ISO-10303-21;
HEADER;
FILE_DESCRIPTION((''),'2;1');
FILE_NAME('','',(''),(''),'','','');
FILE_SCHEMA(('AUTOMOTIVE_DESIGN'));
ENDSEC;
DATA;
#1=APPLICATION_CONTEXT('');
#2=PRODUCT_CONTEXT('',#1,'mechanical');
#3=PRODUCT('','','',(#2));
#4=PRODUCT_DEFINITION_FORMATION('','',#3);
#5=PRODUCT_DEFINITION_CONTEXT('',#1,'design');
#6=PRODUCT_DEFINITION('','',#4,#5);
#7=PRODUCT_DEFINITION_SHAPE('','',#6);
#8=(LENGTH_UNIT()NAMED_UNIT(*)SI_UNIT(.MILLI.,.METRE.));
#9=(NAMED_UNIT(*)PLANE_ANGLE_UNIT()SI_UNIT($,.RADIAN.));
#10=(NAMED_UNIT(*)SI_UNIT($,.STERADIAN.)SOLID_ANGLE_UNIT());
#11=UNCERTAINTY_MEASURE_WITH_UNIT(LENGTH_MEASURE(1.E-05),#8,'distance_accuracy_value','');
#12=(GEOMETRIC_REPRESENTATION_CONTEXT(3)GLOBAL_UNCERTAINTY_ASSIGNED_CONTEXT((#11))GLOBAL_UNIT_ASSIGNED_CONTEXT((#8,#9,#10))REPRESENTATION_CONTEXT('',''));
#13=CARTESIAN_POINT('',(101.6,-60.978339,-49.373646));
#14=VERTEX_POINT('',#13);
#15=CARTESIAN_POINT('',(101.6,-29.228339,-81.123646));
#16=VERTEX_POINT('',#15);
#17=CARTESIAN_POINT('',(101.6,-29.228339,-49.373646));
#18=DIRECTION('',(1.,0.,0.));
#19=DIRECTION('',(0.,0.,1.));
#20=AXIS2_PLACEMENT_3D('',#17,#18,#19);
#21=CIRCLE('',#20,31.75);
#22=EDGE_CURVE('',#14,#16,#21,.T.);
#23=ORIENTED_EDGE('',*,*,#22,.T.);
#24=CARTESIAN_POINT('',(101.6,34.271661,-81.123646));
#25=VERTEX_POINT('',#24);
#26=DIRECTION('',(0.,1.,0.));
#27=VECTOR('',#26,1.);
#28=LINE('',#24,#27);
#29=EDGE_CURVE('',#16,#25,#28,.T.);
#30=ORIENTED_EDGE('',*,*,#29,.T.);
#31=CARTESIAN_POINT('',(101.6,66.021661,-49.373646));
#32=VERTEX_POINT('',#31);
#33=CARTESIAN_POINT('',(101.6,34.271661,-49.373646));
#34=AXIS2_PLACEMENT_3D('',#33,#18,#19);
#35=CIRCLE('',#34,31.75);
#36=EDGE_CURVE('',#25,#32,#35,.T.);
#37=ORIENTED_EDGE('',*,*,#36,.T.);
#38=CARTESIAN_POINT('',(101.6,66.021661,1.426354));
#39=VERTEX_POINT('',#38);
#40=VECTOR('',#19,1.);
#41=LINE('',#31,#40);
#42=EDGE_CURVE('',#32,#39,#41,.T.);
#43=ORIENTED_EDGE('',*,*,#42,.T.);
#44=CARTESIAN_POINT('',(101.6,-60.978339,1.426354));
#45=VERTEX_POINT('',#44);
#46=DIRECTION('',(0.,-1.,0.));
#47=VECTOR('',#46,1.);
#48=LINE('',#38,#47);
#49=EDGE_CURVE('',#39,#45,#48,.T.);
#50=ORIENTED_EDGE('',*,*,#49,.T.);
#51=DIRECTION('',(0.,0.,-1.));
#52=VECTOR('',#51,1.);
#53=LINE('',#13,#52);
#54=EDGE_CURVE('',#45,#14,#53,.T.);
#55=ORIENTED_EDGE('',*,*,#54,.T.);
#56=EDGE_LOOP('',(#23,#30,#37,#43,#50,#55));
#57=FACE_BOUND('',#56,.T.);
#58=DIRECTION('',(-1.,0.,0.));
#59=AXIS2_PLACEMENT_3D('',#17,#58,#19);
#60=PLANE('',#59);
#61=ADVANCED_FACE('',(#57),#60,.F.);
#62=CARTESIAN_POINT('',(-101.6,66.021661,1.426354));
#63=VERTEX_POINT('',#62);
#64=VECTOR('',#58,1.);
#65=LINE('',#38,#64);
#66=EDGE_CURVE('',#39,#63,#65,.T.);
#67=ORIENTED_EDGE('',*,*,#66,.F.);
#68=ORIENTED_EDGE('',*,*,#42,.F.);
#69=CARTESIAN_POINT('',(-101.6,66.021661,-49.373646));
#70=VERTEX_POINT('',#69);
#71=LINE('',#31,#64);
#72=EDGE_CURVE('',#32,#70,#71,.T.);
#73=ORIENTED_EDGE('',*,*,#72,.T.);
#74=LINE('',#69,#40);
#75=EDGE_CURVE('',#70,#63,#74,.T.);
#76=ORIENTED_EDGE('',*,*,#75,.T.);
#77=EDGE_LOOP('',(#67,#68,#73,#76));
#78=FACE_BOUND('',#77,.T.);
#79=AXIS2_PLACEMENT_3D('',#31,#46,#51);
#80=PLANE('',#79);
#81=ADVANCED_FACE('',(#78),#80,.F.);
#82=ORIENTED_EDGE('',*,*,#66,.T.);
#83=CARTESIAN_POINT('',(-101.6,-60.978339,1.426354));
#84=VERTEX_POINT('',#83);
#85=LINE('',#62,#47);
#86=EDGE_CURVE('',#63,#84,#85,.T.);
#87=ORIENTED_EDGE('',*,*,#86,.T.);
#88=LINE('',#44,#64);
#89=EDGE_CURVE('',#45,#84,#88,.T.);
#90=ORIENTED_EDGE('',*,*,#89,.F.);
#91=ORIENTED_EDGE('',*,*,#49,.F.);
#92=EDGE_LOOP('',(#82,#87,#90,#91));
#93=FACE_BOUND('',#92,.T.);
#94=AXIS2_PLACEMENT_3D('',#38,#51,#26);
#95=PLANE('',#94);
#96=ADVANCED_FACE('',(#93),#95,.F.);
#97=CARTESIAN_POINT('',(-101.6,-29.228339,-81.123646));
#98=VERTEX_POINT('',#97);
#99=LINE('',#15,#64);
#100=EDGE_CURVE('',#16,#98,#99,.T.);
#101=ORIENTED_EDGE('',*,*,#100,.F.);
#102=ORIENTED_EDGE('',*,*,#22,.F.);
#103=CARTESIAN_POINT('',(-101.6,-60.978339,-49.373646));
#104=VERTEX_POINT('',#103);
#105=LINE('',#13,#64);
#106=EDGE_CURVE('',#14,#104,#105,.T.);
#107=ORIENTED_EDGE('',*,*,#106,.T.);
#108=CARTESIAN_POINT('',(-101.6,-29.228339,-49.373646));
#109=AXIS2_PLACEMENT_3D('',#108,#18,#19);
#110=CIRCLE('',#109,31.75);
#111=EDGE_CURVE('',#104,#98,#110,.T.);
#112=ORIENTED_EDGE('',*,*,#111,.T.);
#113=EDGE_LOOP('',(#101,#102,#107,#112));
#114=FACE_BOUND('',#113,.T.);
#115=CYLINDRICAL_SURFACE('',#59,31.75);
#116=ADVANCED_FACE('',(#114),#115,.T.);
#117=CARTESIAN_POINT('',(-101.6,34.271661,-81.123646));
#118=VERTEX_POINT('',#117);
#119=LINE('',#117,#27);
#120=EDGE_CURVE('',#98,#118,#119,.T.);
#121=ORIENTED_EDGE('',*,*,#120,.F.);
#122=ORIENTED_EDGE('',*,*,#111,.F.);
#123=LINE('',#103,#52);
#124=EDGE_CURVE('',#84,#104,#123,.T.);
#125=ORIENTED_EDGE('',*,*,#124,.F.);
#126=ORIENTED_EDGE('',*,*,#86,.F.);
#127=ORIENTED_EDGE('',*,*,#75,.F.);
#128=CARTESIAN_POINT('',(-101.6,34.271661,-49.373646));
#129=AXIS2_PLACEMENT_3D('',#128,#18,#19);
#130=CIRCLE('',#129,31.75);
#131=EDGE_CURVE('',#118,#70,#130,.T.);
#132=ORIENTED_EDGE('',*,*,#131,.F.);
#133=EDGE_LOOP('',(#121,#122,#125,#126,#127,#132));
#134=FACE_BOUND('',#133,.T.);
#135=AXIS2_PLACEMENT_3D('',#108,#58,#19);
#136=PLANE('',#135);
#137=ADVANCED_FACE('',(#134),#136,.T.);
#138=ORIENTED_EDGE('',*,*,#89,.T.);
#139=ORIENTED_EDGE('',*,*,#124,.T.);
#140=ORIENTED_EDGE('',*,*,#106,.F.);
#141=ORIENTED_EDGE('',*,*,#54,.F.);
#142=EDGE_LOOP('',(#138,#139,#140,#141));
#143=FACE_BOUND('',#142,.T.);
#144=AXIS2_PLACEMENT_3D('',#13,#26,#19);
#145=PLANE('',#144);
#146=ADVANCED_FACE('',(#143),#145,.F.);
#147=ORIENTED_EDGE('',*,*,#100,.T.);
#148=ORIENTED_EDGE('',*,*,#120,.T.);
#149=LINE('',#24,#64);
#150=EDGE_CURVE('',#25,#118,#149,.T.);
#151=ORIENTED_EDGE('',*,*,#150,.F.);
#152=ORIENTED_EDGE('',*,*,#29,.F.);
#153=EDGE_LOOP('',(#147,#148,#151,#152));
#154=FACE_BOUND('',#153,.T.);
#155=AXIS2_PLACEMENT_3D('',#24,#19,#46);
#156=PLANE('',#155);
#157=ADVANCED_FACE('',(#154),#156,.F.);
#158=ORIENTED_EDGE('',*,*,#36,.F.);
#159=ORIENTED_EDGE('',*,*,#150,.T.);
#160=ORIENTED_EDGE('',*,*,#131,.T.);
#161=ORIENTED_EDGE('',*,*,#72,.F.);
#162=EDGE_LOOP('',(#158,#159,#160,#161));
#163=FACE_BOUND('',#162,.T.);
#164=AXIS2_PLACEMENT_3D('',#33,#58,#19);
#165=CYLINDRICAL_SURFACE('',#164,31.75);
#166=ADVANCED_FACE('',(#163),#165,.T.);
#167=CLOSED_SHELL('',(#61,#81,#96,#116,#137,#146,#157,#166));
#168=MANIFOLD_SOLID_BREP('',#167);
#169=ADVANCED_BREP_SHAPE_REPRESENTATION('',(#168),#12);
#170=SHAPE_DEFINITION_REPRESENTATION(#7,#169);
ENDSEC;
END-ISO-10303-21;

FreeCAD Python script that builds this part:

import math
import FreeCAD as App
import Part
import Sketcher
from FreeCAD import Vector
Q = App.Units.Quantity

doc = App.newDocument("Part")
params = doc.addObject("Spreadsheet::Sheet", "Params")
for row, (alias, value) in enumerate([
    ("sketch1_width", "5 in"),
    ("sketch1_height", "2 in"),
    ("sketch1_radius", "1.25 in"),
    ("pad1_length", "8 in"),
], start=1):
    params.set(f"A{row}", alias)
    params.set(f"B{row}", "=" + value)
    params.setAlias(f"B{row}", alias)

body = doc.addObject("PartDesign::Body", "Body")

sketch1 = doc.addObject("Sketcher::SketchObject", "Sketch")
body.addObject(sketch1)
sketch1.AttachmentSupport = (doc.YZ_Plane, [""])
sketch1.MapMode = "FlatFace"
sketch1.addGeometry([
    Part.LineSegment(Vector(66.021661, -49.373646, 0), Vector(66.021661, 1.426354, 0)),
    Part.LineSegment(Vector(66.021661, 1.426354, 0), Vector(-60.978339, 1.426354, 0)),
    Part.LineSegment(Vector(-60.978339, 1.426354, 0), Vector(-60.978339, -49.373646, 0)),
    Part.ArcOfCircle(Part.Circle(Vector(-29.228339, -49.373646, 0), Vector(0, 0, 1), 31.75), math.radians(180), math.radians(270)),
    Part.LineSegment(Vector(-29.228339, -81.123646, 0), Vector(34.271661, -81.123646, 0)),
    Part.ArcOfCircle(Part.Circle(Vector(34.271661, -49.373646, 0), Vector(0, 0, 1), 31.75), math.radians(-90), math.radians(0)),
], False)
sketch1.addConstraint([
    Sketcher.Constraint("Coincident", 0, 2, 1, 1),
    Sketcher.Constraint("Coincident", 1, 2, 2, 1),
    Sketcher.Constraint("Tangent", 2, 2, 3, 1),
    Sketcher.Constraint("Tangent", 3, 2, 4, 1),
    Sketcher.Constraint("Tangent", 4, 2, 5, 1),
    Sketcher.Constraint("Tangent", 5, 2, 0, 1),
    Sketcher.Constraint("Vertical", 0),
    Sketcher.Constraint("Horizontal", 1),
    Sketcher.Constraint("Vertical", 2),
    Sketcher.Constraint("Horizontal", 4),
    Sketcher.Constraint("Equal", 3, 5),
    Sketcher.Constraint("DistanceX", 1, 2, 1, 1, Q("5 in")),
    Sketcher.Constraint("DistanceY", 0, 1, 0, 2, Q("2 in")),
    Sketcher.Constraint("Radius", 3, Q("1.25 in")),
    Sketcher.Constraint("DistanceX", 3, 3, -1, 1, Q("29.228339 mm")),
    Sketcher.Constraint("DistanceY", 3, 3, -1, 1, Q("49.373646 mm")),
])
sketch1.setExpression("Constraints[11]", "Params.sketch1_width")
sketch1.setExpression("Constraints[12]", "Params.sketch1_height")
sketch1.setExpression("Constraints[13]", "Params.sketch1_radius")
pad1 = doc.addObject("PartDesign::Pad", "Pad")
body.addObject(pad1)
pad1.Profile = sketch1
pad1.setExpression("Length", "Params.pad1_length")
pad1.Midplane = True

doc.recompute()
